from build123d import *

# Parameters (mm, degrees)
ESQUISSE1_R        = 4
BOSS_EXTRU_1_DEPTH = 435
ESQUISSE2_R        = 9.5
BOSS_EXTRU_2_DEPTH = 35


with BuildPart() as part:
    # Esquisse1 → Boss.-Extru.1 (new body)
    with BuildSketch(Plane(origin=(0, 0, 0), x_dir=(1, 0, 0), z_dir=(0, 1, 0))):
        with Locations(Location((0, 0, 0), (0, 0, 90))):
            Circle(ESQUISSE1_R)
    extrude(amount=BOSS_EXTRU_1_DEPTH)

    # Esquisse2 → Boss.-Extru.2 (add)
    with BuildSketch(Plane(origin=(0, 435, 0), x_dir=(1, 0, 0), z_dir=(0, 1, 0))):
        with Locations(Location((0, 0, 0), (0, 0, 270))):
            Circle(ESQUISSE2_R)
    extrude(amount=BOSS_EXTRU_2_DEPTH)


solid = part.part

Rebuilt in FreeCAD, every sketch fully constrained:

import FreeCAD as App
import Part
import Sketcher
from FreeCAD import Vector
Q = App.Units.Quantity

doc = App.newDocument("Part")
params = doc.addObject("Spreadsheet::Sheet", "Params")
for row, (alias, value) in enumerate([
    ("sketch1_diameter", "8 mm"),
    ("pad1_length", "435 mm"),
    ("sketch2_diameter", "19 mm"),
    ("pad2_length", "35 mm"),
], start=1):
    params.set(f"A{row}", alias)
    params.set(f"B{row}", "=" + value)
    params.setAlias(f"B{row}", alias)

body = doc.addObject("PartDesign::Body", "Body")

sketch1 = doc.addObject("Sketcher::SketchObject", "Sketch")
body.addObject(sketch1)
sketch1.AttachmentSupport = (doc.XZ_Plane, [""])
sketch1.MapMode = "FlatFace"
sketch1.addGeometry(Part.Circle(Vector(0, 0, 0), Vector(0, 0, 1), 4), False)
sketch1.addConstraint(Sketcher.Constraint("Coincident", 0, 3, -1, 1))
sketch1.addConstraint(Sketcher.Constraint("Diameter", 0, Q("8 mm")))
sketch1.setExpression("Constraints[1]", "Params.sketch1_diameter")
pad1 = doc.addObject("PartDesign::Pad", "Pad")
body.addObject(pad1)
pad1.Profile = sketch1
pad1.setExpression("Length", "Params.pad1_length")
pad1.Reversed = True

sketch2 = doc.addObject("Sketcher::SketchObject", "Sketch001")
body.addObject(sketch2)
sketch2.AttachmentSupport = (doc.XZ_Plane, [""])
sketch2.MapMode = "FlatFace"
sketch2.AttachmentOffset = App.Placement(Vector(0, 0, -435), App.Rotation())
sketch2.addGeometry(Part.Circle(Vector(0, 0, 0), Vector(0, 0, 1), 9.5), False)
sketch2.addConstraint(Sketcher.Constraint("Coincident", 0, 3, -1, 1))
sketch2.addConstraint(Sketcher.Constraint("Diameter", 0, Q("19 mm")))
sketch2.setExpression("Constraints[1]", "Params.sketch2_diameter")
pad2 = doc.addObject("PartDesign::Pad", "Pad001")
body.addObject(pad2)
pad2.Profile = sketch2
pad2.setExpression("Length", "Params.pad2_length")
pad2.Reversed = True

doc.recompute()
